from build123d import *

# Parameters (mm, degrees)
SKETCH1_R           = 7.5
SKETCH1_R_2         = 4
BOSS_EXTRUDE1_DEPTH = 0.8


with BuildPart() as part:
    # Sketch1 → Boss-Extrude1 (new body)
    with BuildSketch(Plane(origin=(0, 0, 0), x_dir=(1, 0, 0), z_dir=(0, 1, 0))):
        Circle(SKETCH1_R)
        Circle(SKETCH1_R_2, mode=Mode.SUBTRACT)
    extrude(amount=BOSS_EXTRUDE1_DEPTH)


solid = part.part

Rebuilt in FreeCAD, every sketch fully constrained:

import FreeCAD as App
import Part
import Sketcher

doc = App.newDocument("Part")
body = doc.addObject("PartDesign::Body", "Body")

sketch1 = doc.addObject("Sketcher::SketchObject", "Sketch")
body.addObject(sketch1)
sketch1.AttachmentSupport = (doc.XZ_Plane, [""])
sketch1.MapMode = "FlatFace"
sketch1.addGeometry(Part.Circle(App.Vector(0, 0, 0), App.Vector(0, 0, 1), 7.5), False)
sketch1.addGeometry(Part.Circle(App.Vector(0, 0, 0), App.Vector(0, 0, 1), 4), False)
sketch1.addConstraint(Sketcher.Constraint("Coincident", 0, 3, -1, 1))
sketch1.addConstraint(Sketcher.Constraint("Coincident", 1, 3, -1, 1))
sketch1.addConstraint(Sketcher.Constraint("Diameter", 0, 15.0))
sketch1.addConstraint(Sketcher.Constraint("Diameter", 1, 8.0))
pad1 = doc.addObject("PartDesign::Pad", "Pad")
body.addObject(pad1)
pad1.Profile = sketch1
pad1.Length = 0.8
pad1.Reversed = True

doc.recompute()
